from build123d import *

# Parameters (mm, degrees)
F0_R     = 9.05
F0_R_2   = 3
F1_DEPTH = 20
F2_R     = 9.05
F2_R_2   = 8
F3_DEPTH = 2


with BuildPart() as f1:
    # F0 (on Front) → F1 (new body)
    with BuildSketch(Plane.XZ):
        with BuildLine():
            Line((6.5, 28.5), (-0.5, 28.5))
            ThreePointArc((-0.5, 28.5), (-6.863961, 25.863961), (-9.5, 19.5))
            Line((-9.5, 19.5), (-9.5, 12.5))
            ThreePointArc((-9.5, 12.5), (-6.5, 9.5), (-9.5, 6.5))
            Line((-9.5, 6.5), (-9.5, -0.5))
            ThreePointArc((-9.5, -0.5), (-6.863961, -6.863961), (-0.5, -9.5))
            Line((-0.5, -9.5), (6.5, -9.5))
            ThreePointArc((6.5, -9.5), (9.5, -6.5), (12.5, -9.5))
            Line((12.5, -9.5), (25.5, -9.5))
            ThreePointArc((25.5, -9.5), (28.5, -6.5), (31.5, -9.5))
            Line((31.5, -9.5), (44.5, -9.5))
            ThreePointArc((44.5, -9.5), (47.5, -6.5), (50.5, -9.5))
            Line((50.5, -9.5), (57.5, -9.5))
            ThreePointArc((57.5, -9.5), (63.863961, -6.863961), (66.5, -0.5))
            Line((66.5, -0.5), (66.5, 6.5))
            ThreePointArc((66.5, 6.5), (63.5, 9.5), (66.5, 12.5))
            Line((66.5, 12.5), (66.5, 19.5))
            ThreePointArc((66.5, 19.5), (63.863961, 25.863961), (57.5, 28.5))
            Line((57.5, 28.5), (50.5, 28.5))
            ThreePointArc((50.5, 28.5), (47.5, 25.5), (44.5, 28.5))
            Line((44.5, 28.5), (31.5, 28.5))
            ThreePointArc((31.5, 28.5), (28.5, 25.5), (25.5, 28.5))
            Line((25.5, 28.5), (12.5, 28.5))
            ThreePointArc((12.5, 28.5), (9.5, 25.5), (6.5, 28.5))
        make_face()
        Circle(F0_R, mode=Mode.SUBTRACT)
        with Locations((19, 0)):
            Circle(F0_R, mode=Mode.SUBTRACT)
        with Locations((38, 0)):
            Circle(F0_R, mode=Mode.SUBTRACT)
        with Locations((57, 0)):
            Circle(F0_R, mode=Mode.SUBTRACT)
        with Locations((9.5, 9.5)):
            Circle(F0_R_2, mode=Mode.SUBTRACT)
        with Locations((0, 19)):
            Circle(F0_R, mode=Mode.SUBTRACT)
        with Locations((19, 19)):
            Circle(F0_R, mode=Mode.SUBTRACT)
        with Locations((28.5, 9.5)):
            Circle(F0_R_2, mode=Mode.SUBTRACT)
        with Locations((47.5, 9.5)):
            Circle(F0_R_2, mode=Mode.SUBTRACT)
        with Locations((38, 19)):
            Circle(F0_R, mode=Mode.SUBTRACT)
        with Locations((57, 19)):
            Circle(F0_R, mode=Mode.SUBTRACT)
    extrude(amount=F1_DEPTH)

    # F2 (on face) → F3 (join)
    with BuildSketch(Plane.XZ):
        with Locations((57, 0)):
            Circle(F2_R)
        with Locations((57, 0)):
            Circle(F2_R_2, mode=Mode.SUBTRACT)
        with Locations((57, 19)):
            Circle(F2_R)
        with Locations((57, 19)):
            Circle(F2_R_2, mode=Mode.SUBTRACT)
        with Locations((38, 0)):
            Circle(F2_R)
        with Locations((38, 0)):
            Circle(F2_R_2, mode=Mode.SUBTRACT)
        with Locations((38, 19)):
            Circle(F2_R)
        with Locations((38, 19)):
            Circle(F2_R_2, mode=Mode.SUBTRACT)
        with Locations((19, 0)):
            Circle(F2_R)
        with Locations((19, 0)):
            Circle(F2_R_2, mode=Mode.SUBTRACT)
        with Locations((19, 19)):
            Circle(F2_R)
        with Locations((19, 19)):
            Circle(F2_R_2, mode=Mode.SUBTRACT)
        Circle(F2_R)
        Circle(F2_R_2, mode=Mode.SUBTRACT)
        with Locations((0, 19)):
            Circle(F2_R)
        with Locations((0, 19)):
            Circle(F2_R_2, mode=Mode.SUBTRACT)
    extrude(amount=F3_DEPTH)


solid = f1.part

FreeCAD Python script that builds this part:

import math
import FreeCAD as App
import Part
import Sketcher
from FreeCAD import Vector

doc = App.newDocument("Part")
params = doc.addObject("Spreadsheet::Sheet", "Params")
for row, (alias, value) in enumerate([
    ("sketch1_diameter", "6 mm"),
    ("sketch1_radius", "9 mm"),
    ("sketch1_diameter2", "18.1 mm"),
    ("sketch1_width", "7 mm"),
    ("sketch1_width2", "13 mm"),
    ("pad1_length", "20 mm"),
    ("sketch2_diameter", "16 mm"),
    ("sketch2_diameter2", "18.1 mm"),
    ("pad2_length", "2 mm"),
], start=1):
    params.set(f"A{row}", alias)
    params.set(f"B{row}", "=" + value)
    params.setAlias(f"B{row}", alias)

body = doc.addObject("PartDesign::Body", "Body")

# Sketch on XZ plane
sketch1 = doc.addObject("Sketcher::SketchObject", "Sketch")
body.addObject(sketch1)
sketch1.AttachmentSupport = (doc.XZ_Plane, [""])
sketch1.MapMode = "FlatFace"
sketch1.addGeometry([
    Part.LineSegment(Vector(6.5, 28.5, 0), Vector(-0.5, 28.5, 0)),  # 0
    Part.ArcOfCircle(Part.Circle(Vector(-0.5, 19.5, 0), Vector(0, 0, 1), 9), math.radians(90), math.radians(180)),  # 1
    Part.LineSegment(Vector(-9.5, 19.5, 0), Vector(-9.5, 12.5, 0)),  # 2
    Part.ArcOfCircle(Part.Circle(Vector(-9.5, 9.5, 0), Vector(0, 0, 1), 3), math.radians(-90), math.radians(90)),  # 3
    Part.LineSegment(Vector(-9.5, 6.5, 0), Vector(-9.5, -0.5, 0)),  # 4
    Part.ArcOfCircle(Part.Circle(Vector(-0.5, -0.5, 0), Vector(0, 0, 1), 9), math.radians(-180), math.radians(-90)),  # 5
    Part.LineSegment(Vector(-0.5, -9.5, 0), Vector(6.5, -9.5, 0)),  # 6
    Part.ArcOfCircle(Part.Circle(Vector(9.5, -9.5, 0), Vector(0, 0, 1), 3), math.radians(0), math.radians(180)),  # 7
    Part.LineSegment(Vector(12.5, -9.5, 0), Vector(25.5, -9.5, 0)),  # 8
    Part.ArcOfCircle(Part.Circle(Vector(28.5, -9.5, 0), Vector(0, 0, 1), 3), math.radians(0), math.radians(180)),  # 9
    Part.LineSegment(Vector(31.5, -9.5, 0), Vector(44.5, -9.5, 0)),  # 10
    Part.ArcOfCircle(Part.Circle(Vector(47.5, -9.5, 0), Vector(0, 0, 1), 3), math.radians(0), math.radians(180)),  # 11
    Part.LineSegment(Vector(50.5, -9.5, 0), Vector(57.5, -9.5, 0)),  # 12
    Part.ArcOfCircle(Part.Circle(Vector(57.5, -0.5, 0), Vector(0, 0, 1), 9), math.radians(-90), math.radians(0)),  # 13
    Part.LineSegment(Vector(66.5, -0.5, 0), Vector(66.5, 6.5, 0)),  # 14
    Part.ArcOfCircle(Part.Circle(Vector(66.5, 9.5, 0), Vector(0, 0, 1), 3), math.radians(90), math.radians(270)),  # 15
    Part.LineSegment(Vector(66.5, 12.5, 0), Vector(66.5, 19.5, 0)),  # 16
    Part.ArcOfCircle(Part.Circle(Vector(57.5, 19.5, 0), Vector(0, 0, 1), 9), math.radians(0), math.radians(90)),  # 17
    Part.LineSegment(Vector(57.5, 28.5, 0), Vector(50.5, 28.5, 0)),  # 18
    Part.ArcOfCircle(Part.Circle(Vector(47.5, 28.5, 0), Vector(0, 0, 1), 3), math.radians(180), math.radians(360)),  # 19
    Part.LineSegment(Vector(44.5, 28.5, 0), Vector(31.5, 28.5, 0)),  # 20
    Part.ArcOfCircle(Part.Circle(Vector(28.5, 28.5, 0), Vector(0, 0, 1), 3), math.radians(180), math.radians(360)),  # 21
    Part.LineSegment(Vector(25.5, 28.5, 0), Vector(12.5, 28.5, 0)),  # 22
    Part.ArcOfCircle(Part.Circle(Vector(9.5, 28.5, 0), Vector(0, 0, 1), 3), math.radians(180), math.radians(360)),  # 23
    Part.Circle(Vector(0, 0, 0), Vector(0, 0, 1), 9.1),  # 24
    Part.Circle(Vector(19, 0, 0), Vector(0, 0, 1), 9.1),  # 25
    Part.Circle(Vector(38, 0, 0), Vector(0, 0, 1), 9.1),  # 26
    Part.Circle(Vector(57, 0, 0), Vector(0, 0, 1), 9.1),  # 27
    Part.Circle(Vector(9.5, 9.5, 0), Vector(0, 0, 1), 3),  # 28
    Part.Circle(Vector(0, 19, 0), Vector(0, 0, 1), 9.1),  # 29
    Part.Circle(Vector(19, 19, 0), Vector(0, 0, 1), 9.1),  # 30
    Part.Circle(Vector(28.5, 9.5, 0), Vector(0, 0, 1), 3),  # 31
    Part.Circle(Vector(47.5, 9.5, 0), Vector(0, 0, 1), 3),  # 32
    Part.Circle(Vector(38, 19, 0), Vector(0, 0, 1), 9.1),  # 33
    Part.Circle(Vector(57, 19, 0), Vector(0, 0, 1), 9.1),  # 34
], False)
sketch1.addConstraint([
    Sketcher.Constraint("Tangent", 0, 2, 1, 1),
    Sketcher.Constraint("Tangent", 1, 2, 2, 1),
    Sketcher.Constraint("Coincident", 2, 2, 3, 2),
    Sketcher.Constraint("Coincident", 3, 1, 4, 1),
    Sketcher.Constraint("Tangent", 4, 2, 5, 1),
    Sketcher.Constraint("Tangent", 5, 2, 6, 1),
    Sketcher.Constraint("Coincident", 6, 2, 7, 2),
    Sketcher.Constraint("Coincident", 7, 1, 8, 1),
    Sketcher.Constraint("Coincident", 8, 2, 9, 2),
    Sketcher.Constraint("Coincident", 9, 1, 10, 1),
    Sketcher.Constraint("Coincident", 10, 2, 11, 2),
    Sketcher.Constraint("Coincident", 11, 1, 12, 1),
    Sketcher.Constraint("Tangent", 12, 2, 13, 1),
    Sketcher.Constraint("Tangent", 13, 2, 14, 1),
    Sketcher.Constraint("Coincident", 14, 2, 15, 2),
    Sketcher.Constraint("Coincident", 15, 1, 16, 1),
    Sketcher.Constraint("Tangent", 16, 2, 17, 1),
    Sketcher.Constraint("Tangent", 17, 2, 18, 1),
    Sketcher.Constraint("Coincident", 18, 2, 19, 2),
    Sketcher.Constraint("Coincident", 19, 1, 20, 1),
    Sketcher.Constraint("Coincident", 20, 2, 21, 2),
    Sketcher.Constraint("Coincident", 21, 1, 22, 1),
    Sketcher.Constraint("Coincident", 22, 2, 23, 2),
    Sketcher.Constraint("Coincident", 23, 1, 0, 1),
    Sketcher.Constraint("Horizontal", 0),
    Sketcher.Constraint("Vertical", 2),
    Sketcher.Constraint("Vertical", 4),
    Sketcher.Constraint("Horizontal", 6),
    Sketcher.Constraint("Horizontal", 8),
    Sketcher.Constraint("Horizontal", 10),
    Sketcher.Constraint("Horizontal", 12),
    Sketcher.Constraint("Vertical", 14),
    Sketcher.Constraint("Vertical", 16),
    Sketcher.Constraint("Horizontal", 18),
    Sketcher.Constraint("Horizontal", 20),
    Sketcher.Constraint("Horizontal", 22),
    Sketcher.Constraint("Coincident", 24, 3, -1, 1),
    Sketcher.Constraint("Equal", 1, 5),
    Sketcher.Constraint("Equal", 3, 7),
    Sketcher.Constraint("Equal", 7, 9),
    Sketcher.Constraint("Equal", 9, 11),
    Sketcher.Constraint("Equal", 5, 13),
    Sketcher.Constraint("Equal", 11, 15),
    Sketcher.Constraint("Equal", 13, 17),
    Sketcher.Constraint("Equal", 15, 19),
    Sketcher.Constraint("Equal", 19, 21),
    Sketcher.Constraint("Equal", 21, 23),
    Sketcher.Constraint("Equal", 24, 25),
    Sketcher.Constraint("Equal", 25, 26),
    Sketcher.Constraint("Equal", 26, 27),
    Sketcher.Constraint("Equal", 23, 28),
    Sketcher.Constraint("Equal", 27, 29),
    Sketcher.Constraint("Equal", 29, 30),
    Sketcher.Constraint("Equal", 28, 31),
    Sketcher.Constraint("Equal", 31, 32),
    Sketcher.Constraint("Equal", 30, 33),
    Sketcher.Constraint("Equal", 33, 34),
    Sketcher.Constraint("Symmetric", 3, 3, 7, 3, -1, 1),
    Sketcher.Constraint("Symmetric", 3, 3, 28, 3, -2),
    Sketcher.Constraint("Symmetric", 9, 3, 31, 3, -1),
    Sketcher.Constraint("Symmetric", 11, 3, 32, 3, -1),
    Sketcher.Constraint("PointOnObject", 25, 3, -1),
    Sketcher.Constraint("PointOnObject", 26, 3, -1),
    Sketcher.Constraint("PointOnObject", 27, 3, -1),
    Sketcher.Constraint("PointOnObject", 29, 3, -2),
    Sketcher.Constraint("Horizontal", 7, 3, 9, 3),
    Sketcher.Constraint("Horizontal", 9, 3, 11, 3),
    Sketcher.Constraint("Horizontal", 5, 3, 13, 3),
    Sketcher.Constraint("Horizontal", 3, 3, 15, 3),
    Sketcher.Constraint("Horizontal", 1, 3, 17, 3),
    Sketcher.Constraint("Horizontal", 19, 3, 21, 3),
    Sketcher.Constraint("Horizontal", 21, 3, 23, 3),
    Sketcher.Constraint("Horizontal", 29, 3, 30, 3),
    Sketcher.Constraint("Horizontal", 30, 3, 33, 3),
    Sketcher.Constraint("Horizontal", 33, 3, 34, 3),
    Sketcher.Constraint("Horizontal", 23, 3, 0, 2),
    Sketcher.Constraint("Horizontal", 11, 3, 5, 2),
    Sketcher.Constraint("Horizontal", 6, 2, 7, 1),
    Sketcher.Constraint("Horizontal", 8, 2, 9, 1),
    Sketcher.Constraint("Horizontal", 18, 2, 19, 1),
    Sketcher.Constraint("Horizontal", 20, 2, 21, 1),
    Sketcher.Constraint("Vertical", 1, 3, 5, 3),
    Sketcher.Constraint("Vertical", 13, 3, 17, 3),
    Sketcher.Constraint("Vertical", 11, 3, 19, 3),
    Sketcher.Constraint("Vertical", 9, 3, 21, 3),
    Sketcher.Constraint("Vertical", 7, 3, 23, 3),
    Sketcher.Constraint("Vertical", 25, 3, 30, 3),
    Sketcher.Constraint("Vertical", 26, 3, 33, 3),
    Sketcher.Constraint("Vertical", 27, 3, 34, 3),
    Sketcher.Constraint("Vertical", 3, 3, 1, 2),
    Sketcher.Constraint("Vertical", 15, 3, 13, 2),
    Sketcher.Constraint("Equal", 8, 10),
    Sketcher.Constraint("Equal", 6, 12),
    Sketcher.Constraint("Equal", 18, 2),
    Sketcher.Constraint("Equal", 2, 4),
    Sketcher.Constraint("Diameter", 28, 6.0),
    Sketcher.Constraint("Radius", 1, 9.0),
    Sketcher.Constraint("Diameter", 24, 18.1),
    Sketcher.Constraint("DistanceX", 0, 2, 0, 1, 7.0),
    Sketcher.Constraint("DistanceX", 8, 1, 8, 2, 13.0),
    Sketcher.Constraint("DistanceX", -1, 1, 25, 3, 19.0),
    Sketcher.Constraint("DistanceX", -1, 1, 26, 3, 38.0),
    Sketcher.Constraint("DistanceX", -1, 1, 27, 3, 57.0),
    Sketcher.Constraint("DistanceY", -1, 1, 29, 3, 19.0),
])
sketch1.setExpression("Constraints[95]", "Params.sketch1_diameter")
sketch1.setExpression("Constraints[96]", "Params.sketch1_radius")
sketch1.setExpression("Constraints[97]", "Params.sketch1_diameter2")
sketch1.setExpression("Constraints[98]", "Params.sketch1_width")
sketch1.setExpression("Constraints[99]", "Params.sketch1_width2")
pad1 = doc.addObject("PartDesign::Pad", "Pad")
body.addObject(pad1)
pad1.Profile = sketch1
pad1.setExpression("Length", "Params.pad1_length")

# Sketch on XZ plane
sketch2 = doc.addObject("Sketcher::SketchObject", "Sketch001")
body.addObject(sketch2)
sketch2.AttachmentSupport = (doc.XZ_Plane, [""])
sketch2.MapMode = "FlatFace"
sketch2.addGeometry([
    Part.Circle(Vector(57, 0, 0), Vector(0, 0, 1), 9),  # 0
    Part.Circle(Vector(57, 0, 0), Vector(0, 0, 1), 8),  # 1
    Part.Circle(Vector(57, 19, 0), Vector(0, 0, 1), 9),  # 2
    Part.Circle(Vector(57, 19, 0), Vector(0, 0, 1), 8),  # 3
    Part.Circle(Vector(38, 0, 0), Vector(0, 0, 1), 9),  # 4
    Part.Circle(Vector(38, 0, 0), Vector(0, 0, 1), 8),  # 5
    Part.Circle(Vector(38, 19, 0), Vector(0, 0, 1), 9),  # 6
    Part.Circle(Vector(38, 19, 0), Vector(0, 0, 1), 8),  # 7
    Part.Circle(Vector(19, 0, 0), Vector(0, 0, 1), 9),  # 8
    Part.Circle(Vector(19, 0, 0), Vector(0, 0, 1), 8),  # 9
    Part.Circle(Vector(19, 19, 0), Vector(0, 0, 1), 9),  # 10
    Part.Circle(Vector(19, 19, 0), Vector(0, 0, 1), 8),  # 11
    Part.Circle(Vector(0, 0, 0), Vector(0, 0, 1), 9),  # 12
    Part.Circle(Vector(0, 0, 0), Vector(0, 0, 1), 8),  # 13
    Part.Circle(Vector(0, 19, 0), Vector(0, 0, 1), 9),  # 14
    Part.Circle(Vector(0, 19, 0), Vector(0, 0, 1), 8),  # 15
], False)
sketch2.addConstraint([
    Sketcher.Constraint("Coincident", 12, 3, -1, 1),
    Sketcher.Constraint("Coincident", 13, 3, -1, 1),
    Sketcher.Constraint("Coincident", 1, 3, 0, 3),
    Sketcher.Constraint("Coincident", 3, 3, 2, 3),
    Sketcher.Constraint("Coincident", 5, 3, 4, 3),
    Sketcher.Constraint("Coincident", 7, 3, 6, 3),
    Sketcher.Constraint("Coincident", 9, 3, 8, 3),
    Sketcher.Constraint("Coincident", 11, 3, 10, 3),
    Sketcher.Constraint("Coincident", 15, 3, 14, 3),
    Sketcher.Constraint("Equal", 0, 2),
    Sketcher.Constraint("Equal", 1, 3),
    Sketcher.Constraint("Equal", 2, 4),
    Sketcher.Constraint("Equal", 3, 5),
    Sketcher.Constraint("Equal", 4, 6),
    Sketcher.Constraint("Equal", 5, 7),
    Sketcher.Constraint("Equal", 6, 8),
    Sketcher.Constraint("Equal", 7, 9),
    Sketcher.Constraint("Equal", 8, 10),
    Sketcher.Constraint("Equal", 9, 11),
    Sketcher.Constraint("Equal", 10, 12),
    Sketcher.Constraint("Equal", 11, 13),
    Sketcher.Constraint("Equal", 12, 14),
    Sketcher.Constraint("Equal", 13, 15),
    Sketcher.Constraint("PointOnObject", 0, 3, -1),
    Sketcher.Constraint("PointOnObject", 4, 3, -1),
    Sketcher.Constraint("PointOnObject", 8, 3, -1),
    Sketcher.Constraint("PointOnObject", 14, 3, -2),
    Sketcher.Constraint("Horizontal", 3, 3, 6, 3),
    Sketcher.Constraint("Horizontal", 7, 3, 10, 3),
    Sketcher.Constraint("Horizontal", 11, 3, 14, 3),
    Sketcher.Constraint("Vertical", 1, 3, 2, 3),
    Sketcher.Constraint("Vertical", 5, 3, 6, 3),
    Sketcher.Constraint("Vertical", 9, 3, 10, 3),
    Sketcher.Constraint("Diameter", 1, 16.0),
    Sketcher.Constraint("Diameter", 0, 18.1),
    Sketcher.Constraint("DistanceX", -1, 1, 0, 3, 57.0),
    Sketcher.Constraint("DistanceY", -1, 1, 2, 3, 19.0),
    Sketcher.Constraint("DistanceX", -1, 1, 4, 3, 38.0),
    Sketcher.Constraint("DistanceX", -1, 1, 8, 3, 19.0),
])
sketch2.setExpression("Constraints[33]", "Params.sketch2_diameter")
sketch2.setExpression("Constraints[34]", "Params.sketch2_diameter2")
pad2 = doc.addObject("PartDesign::Pad", "Pad001")
body.addObject(pad2)
pad2.Profile = sketch2
pad2.setExpression("Length", "Params.pad2_length")

doc.recompute()
